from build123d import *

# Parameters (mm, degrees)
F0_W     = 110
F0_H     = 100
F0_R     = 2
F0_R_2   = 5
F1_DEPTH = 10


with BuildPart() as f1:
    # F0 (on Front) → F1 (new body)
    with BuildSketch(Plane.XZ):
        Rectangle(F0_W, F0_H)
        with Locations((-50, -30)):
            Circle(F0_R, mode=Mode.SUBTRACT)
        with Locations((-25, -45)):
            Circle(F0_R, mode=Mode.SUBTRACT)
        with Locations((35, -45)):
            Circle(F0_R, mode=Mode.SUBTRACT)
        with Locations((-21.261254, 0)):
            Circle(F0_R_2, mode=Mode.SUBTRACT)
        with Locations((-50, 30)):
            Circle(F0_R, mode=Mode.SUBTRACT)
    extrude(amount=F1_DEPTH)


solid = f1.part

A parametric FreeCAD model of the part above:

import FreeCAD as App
import Part
import Sketcher
from FreeCAD import Vector
Q = App.Units.Quantity

doc = App.newDocument("Part")
body = doc.addObject("PartDesign::Body", "Body")

# Sketch on XZ plane
sketch1 = body.newObject("Sketcher::SketchObject", "Sketch")
sketch1.AttachmentSupport = (doc.getObject("XZ_Plane"), [""])
sketch1.MapMode = "FlatFace"
sketch1.addGeometry(Part.LineSegment(Vector(-55, 50, 0), Vector(-55, -50, 0)), False)
sketch1.addGeometry(Part.LineSegment(Vector(-55, -50, 0), Vector(55, -50, 0)), False)
sketch1.addGeometry(Part.LineSegment(Vector(55, -50, 0), Vector(55, 50, 0)), False)
sketch1.addGeometry(Part.LineSegment(Vector(55, 50, 0), Vector(-55, 50, 0)), False)
sketch1.addGeometry(Part.Circle(Vector(-50, -30, 0), Vector(0, 0, 1), 2), False)
sketch1.addGeometry(Part.Circle(Vector(-25, -45, 0), Vector(0, 0, 1), 2), False)
sketch1.addGeometry(Part.Circle(Vector(35, -45, 0), Vector(0, 0, 1), 2), False)
sketch1.addGeometry(Part.Circle(Vector(-21.3, 0, 0), Vector(0, 0, 1), 5), False)
sketch1.addGeometry(Part.Circle(Vector(-50, 30, 0), Vector(0, 0, 1), 2), False)
sketch1.addConstraint(Sketcher.Constraint("Coincident", 0, 2, 1, 1))
sketch1.addConstraint(Sketcher.Constraint("Coincident", 1, 2, 2, 1))
sketch1.addConstraint(Sketcher.Constraint("Coincident", 2, 2, 3, 1))
sketch1.addConstraint(Sketcher.Constraint("Coincident", 3, 2, 0, 1))
sketch1.addConstraint(Sketcher.Constraint("Vertical", 0))
sketch1.addConstraint(Sketcher.Constraint("Horizontal", 1))
sketch1.addConstraint(Sketcher.Constraint("Vertical", 2))
sketch1.addConstraint(Sketcher.Constraint("Horizontal", 3))
sketch1.addConstraint(Sketcher.Constraint("Equal", 4, 5))
sketch1.addConstraint(Sketcher.Constraint("Equal", 5, 6))
sketch1.addConstraint(Sketcher.Constraint("Equal", 6, 8))
sketch1.addConstraint(Sketcher.Constraint("Symmetric", 0, 2, 2, 2, -1, 1))
sketch1.addConstraint(Sketcher.Constraint("Symmetric", 4, 3, 8, 3, -1))
sketch1.addConstraint(Sketcher.Constraint("PointOnObject", 7, 3, -1))
sketch1.addConstraint(Sketcher.Constraint("Horizontal", 5, 3, 6, 3))
sketch1.addConstraint(Sketcher.Constraint("Diameter", 4, Q("4 mm")))
sketch1.addConstraint(Sketcher.Constraint("Diameter", 7, Q("10 mm")))
sketch1.addConstraint(Sketcher.Constraint("DistanceX", 1, 1, 1, 2, Q("110 mm")))
sketch1.addConstraint(Sketcher.Constraint("DistanceY", 0, 2, 0, 1, Q("100 mm")))
sketch1.addConstraint(Sketcher.Constraint("DistanceX", 4, 3, -1, 1, Q("50 mm")))
sketch1.addConstraint(Sketcher.Constraint("DistanceY", 4, 3, -1, 1, Q("30 mm")))
sketch1.addConstraint(Sketcher.Constraint("DistanceX", 5, 3, -1, 1, Q("25 mm")))
sketch1.addConstraint(Sketcher.Constraint("DistanceY", 5, 3, -1, 1, Q("45 mm")))
sketch1.addConstraint(Sketcher.Constraint("DistanceX", -1, 1, 6, 3, Q("35 mm")))
sketch1.addConstraint(Sketcher.Constraint("DistanceX", 7, 3, -1, 1, Q("21.261254 mm")))
pad1 = body.newObject("PartDesign::Pad", "Pad")
pad1.Profile = sketch1
pad1.Length = 10

doc.recompute()
